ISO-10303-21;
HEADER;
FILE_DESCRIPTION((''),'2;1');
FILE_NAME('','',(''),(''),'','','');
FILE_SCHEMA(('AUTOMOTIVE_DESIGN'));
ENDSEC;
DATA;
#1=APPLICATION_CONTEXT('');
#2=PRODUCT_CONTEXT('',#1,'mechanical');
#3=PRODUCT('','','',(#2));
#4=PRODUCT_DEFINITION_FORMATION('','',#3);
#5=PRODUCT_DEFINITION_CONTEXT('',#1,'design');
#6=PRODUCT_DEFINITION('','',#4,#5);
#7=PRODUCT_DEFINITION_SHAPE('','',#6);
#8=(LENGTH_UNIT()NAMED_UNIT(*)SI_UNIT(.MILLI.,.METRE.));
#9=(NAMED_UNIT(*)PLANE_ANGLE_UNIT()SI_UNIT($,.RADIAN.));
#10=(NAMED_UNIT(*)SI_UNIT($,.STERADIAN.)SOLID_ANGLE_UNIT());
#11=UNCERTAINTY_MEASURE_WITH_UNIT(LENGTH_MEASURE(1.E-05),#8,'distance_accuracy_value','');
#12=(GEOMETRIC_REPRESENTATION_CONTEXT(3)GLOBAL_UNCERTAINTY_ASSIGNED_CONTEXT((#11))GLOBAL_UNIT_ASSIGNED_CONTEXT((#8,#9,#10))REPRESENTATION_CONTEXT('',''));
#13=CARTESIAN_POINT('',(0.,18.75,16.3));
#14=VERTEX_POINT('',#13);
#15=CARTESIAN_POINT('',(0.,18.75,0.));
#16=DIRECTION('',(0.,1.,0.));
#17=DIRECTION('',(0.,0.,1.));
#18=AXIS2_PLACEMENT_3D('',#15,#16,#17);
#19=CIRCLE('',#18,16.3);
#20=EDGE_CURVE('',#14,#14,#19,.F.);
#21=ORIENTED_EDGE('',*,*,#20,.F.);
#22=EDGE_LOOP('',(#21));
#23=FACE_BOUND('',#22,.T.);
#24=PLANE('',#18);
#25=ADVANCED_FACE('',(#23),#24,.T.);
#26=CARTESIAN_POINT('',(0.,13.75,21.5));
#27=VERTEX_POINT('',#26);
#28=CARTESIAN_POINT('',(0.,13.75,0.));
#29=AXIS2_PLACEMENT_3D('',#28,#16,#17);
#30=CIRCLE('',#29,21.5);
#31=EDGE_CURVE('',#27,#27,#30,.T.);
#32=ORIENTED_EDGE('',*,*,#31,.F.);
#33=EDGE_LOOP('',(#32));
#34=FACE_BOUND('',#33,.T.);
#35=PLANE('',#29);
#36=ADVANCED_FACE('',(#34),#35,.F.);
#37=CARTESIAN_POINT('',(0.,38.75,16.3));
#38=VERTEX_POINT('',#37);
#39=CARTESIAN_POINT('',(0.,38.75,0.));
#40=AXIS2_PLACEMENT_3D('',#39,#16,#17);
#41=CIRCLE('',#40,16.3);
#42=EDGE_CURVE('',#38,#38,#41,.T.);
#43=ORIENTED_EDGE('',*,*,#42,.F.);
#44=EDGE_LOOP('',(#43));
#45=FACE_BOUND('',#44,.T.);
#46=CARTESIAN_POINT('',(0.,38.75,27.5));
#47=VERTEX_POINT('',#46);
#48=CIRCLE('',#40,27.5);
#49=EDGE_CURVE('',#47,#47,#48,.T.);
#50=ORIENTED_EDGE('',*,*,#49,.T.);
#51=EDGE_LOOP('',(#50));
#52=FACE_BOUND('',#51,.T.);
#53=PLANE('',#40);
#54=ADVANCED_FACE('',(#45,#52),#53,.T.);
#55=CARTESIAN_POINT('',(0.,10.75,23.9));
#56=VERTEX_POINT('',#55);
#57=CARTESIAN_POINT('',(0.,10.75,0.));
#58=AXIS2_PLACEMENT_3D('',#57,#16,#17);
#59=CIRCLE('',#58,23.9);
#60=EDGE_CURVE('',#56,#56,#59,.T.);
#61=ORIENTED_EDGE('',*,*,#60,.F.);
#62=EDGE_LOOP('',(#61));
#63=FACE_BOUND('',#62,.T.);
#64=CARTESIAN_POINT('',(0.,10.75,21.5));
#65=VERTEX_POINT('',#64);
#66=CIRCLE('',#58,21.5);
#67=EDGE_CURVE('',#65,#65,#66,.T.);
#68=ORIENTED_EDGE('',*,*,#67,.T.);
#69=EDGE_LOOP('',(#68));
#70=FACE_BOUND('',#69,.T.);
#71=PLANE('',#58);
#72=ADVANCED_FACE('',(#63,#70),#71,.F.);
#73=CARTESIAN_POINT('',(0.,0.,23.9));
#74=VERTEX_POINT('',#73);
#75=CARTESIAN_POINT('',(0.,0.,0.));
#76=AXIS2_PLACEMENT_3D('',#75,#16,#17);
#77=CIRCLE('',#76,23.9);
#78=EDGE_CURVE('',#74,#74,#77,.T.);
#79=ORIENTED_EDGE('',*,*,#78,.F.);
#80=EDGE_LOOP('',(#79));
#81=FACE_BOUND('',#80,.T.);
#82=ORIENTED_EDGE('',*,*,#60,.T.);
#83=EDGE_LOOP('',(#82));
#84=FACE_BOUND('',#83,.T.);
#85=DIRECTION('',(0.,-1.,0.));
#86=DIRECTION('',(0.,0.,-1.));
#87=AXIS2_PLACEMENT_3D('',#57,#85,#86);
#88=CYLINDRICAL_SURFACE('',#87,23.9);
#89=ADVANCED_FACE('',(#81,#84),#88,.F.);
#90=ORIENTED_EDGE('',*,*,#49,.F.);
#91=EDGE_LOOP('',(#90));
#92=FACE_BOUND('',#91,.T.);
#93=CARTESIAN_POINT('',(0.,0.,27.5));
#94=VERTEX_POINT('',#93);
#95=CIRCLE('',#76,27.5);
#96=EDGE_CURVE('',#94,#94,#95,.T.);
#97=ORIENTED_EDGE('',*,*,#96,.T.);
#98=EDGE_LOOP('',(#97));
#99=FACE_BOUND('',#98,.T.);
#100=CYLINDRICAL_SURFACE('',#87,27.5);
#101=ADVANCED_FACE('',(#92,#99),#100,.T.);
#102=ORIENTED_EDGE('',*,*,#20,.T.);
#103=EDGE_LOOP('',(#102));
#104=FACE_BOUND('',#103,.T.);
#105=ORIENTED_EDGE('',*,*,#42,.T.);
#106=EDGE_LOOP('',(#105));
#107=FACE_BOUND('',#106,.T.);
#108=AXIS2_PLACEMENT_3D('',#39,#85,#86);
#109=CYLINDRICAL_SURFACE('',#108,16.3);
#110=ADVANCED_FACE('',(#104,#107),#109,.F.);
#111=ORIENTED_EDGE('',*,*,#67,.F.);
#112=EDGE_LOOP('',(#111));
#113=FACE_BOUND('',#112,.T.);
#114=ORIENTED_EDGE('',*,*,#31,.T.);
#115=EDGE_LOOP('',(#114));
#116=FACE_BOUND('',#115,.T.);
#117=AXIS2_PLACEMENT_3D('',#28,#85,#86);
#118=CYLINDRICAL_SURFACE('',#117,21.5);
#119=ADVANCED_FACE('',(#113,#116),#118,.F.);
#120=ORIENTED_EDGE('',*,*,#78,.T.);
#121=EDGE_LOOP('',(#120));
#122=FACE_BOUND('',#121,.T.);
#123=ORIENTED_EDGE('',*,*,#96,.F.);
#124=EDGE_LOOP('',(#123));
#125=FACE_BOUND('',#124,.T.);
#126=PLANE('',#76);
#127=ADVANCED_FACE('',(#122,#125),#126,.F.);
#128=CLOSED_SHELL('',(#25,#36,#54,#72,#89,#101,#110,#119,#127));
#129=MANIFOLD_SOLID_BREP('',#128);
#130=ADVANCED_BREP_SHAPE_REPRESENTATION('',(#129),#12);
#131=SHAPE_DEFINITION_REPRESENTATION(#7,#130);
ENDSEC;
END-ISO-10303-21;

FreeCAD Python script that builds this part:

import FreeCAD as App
import Part
import Sketcher

V = App.Vector

doc = App.newDocument("Part")
body = doc.addObject("PartDesign::Body", "Body")

# Sketch on XZ plane
sketch1 = body.newObject("Sketcher::SketchObject", "Sketch")
sketch1.AttachmentSupport = (doc.getObject("XZ_Plane"), [""])
sketch1.MapMode = "FlatFace"
sketch1.addGeometry(Part.Circle(V(0, 0, 0), V(0, 0, 1), 28), False)
sketch1.addGeometry(Part.Circle(V(0, 0, 0), V(0, 0, 1), 24), False)
sketch1.addConstraint(Sketcher.Constraint("Coincident", 0, 3, -1, 1))
sketch1.addConstraint(Sketcher.Constraint("Coincident", 1, 3, -1, 1))
sketch1.addConstraint(Sketcher.Constraint("Diameter", 0, 55.0))
sketch1.addConstraint(Sketcher.Constraint("Diameter", 1, 47.8))
pad1 = body.newObject("PartDesign::Pad", "Pad")
pad1.Profile = sketch1
pad1.Length = 10.75
pad1.Reversed = True

# Sketch on XZ plane
sketch2 = body.newObject("Sketcher::SketchObject", "Sketch001")
sketch2.AttachmentSupport = (doc.getObject("XZ_Plane"), [""])
sketch2.MapMode = "FlatFace"
sketch2.AttachmentOffset = App.Placement(V(0, 0, -10.75), App.Rotation())
sketch2.addGeometry(Part.Circle(V(0, 0, 0), V(0, 0, 1), 28), False)
sketch2.addGeometry(Part.Circle(V(0, 0, 0), V(0, 0, 1), 22), False)
sketch2.addConstraint(Sketcher.Constraint("Coincident", 0, 3, -1, 1))
sketch2.addConstraint(Sketcher.Constraint("Coincident", 1, 3, -1, 1))
sketch2.addConstraint(Sketcher.Constraint("Diameter", 0, 55.0))
sketch2.addConstraint(Sketcher.Constraint("Diameter", 1, 43.0))
pad2 = body.newObject("PartDesign::Pad", "Pad001")
pad2.Profile = sketch2
pad2.Length = 3
pad2.Reversed = True

# Sketch on XZ plane
sketch3 = body.newObject("Sketcher::SketchObject", "Sketch002")
sketch3.AttachmentSupport = (doc.getObject("XZ_Plane"), [""])
sketch3.MapMode = "FlatFace"
sketch3.AttachmentOffset = App.Placement(V(0, 0, -13.75), App.Rotation())
sketch3.addGeometry(Part.Circle(V(0, 0, 0), V(0, 0, 1), 28), False)
sketch3.addConstraint(Sketcher.Constraint("Coincident", 0, 3, -1, 1))
sketch3.addConstraint(Sketcher.Constraint("Diameter", 0, 55.0))
pad3 = body.newObject("PartDesign::Pad", "Pad002")
pad3.Profile = sketch3
pad3.Length = 5
pad3.Reversed = True

# Sketch on XZ plane
sketch4 = body.newObject("Sketcher::SketchObject", "Sketch003")
sketch4.AttachmentSupport = (doc.getObject("XZ_Plane"), [""])
sketch4.MapMode = "FlatFace"
sketch4.AttachmentOffset = App.Placement(V(0, 0, -18.75), App.Rotation())
sketch4.addGeometry(Part.Circle(V(0, 0, 0), V(0, 0, 1), 28), False)
sketch4.addGeometry(Part.Circle(V(0, 0, 0), V(0, 0, 1), 16), False)
sketch4.addConstraint(Sketcher.Constraint("Coincident", 0, 3, -1, 1))
sketch4.addConstraint(Sketcher.Constraint("Coincident", 1, 3, -1, 1))
sketch4.addConstraint(Sketcher.Constraint("Diameter", 0, 55.0))
sketch4.addConstraint(Sketcher.Constraint("Diameter", 1, 32.6))
pad4 = body.newObject("PartDesign::Pad", "Pad003")
pad4.Profile = sketch4
pad4.Length = 20
pad4.Reversed = True

doc.recompute()
